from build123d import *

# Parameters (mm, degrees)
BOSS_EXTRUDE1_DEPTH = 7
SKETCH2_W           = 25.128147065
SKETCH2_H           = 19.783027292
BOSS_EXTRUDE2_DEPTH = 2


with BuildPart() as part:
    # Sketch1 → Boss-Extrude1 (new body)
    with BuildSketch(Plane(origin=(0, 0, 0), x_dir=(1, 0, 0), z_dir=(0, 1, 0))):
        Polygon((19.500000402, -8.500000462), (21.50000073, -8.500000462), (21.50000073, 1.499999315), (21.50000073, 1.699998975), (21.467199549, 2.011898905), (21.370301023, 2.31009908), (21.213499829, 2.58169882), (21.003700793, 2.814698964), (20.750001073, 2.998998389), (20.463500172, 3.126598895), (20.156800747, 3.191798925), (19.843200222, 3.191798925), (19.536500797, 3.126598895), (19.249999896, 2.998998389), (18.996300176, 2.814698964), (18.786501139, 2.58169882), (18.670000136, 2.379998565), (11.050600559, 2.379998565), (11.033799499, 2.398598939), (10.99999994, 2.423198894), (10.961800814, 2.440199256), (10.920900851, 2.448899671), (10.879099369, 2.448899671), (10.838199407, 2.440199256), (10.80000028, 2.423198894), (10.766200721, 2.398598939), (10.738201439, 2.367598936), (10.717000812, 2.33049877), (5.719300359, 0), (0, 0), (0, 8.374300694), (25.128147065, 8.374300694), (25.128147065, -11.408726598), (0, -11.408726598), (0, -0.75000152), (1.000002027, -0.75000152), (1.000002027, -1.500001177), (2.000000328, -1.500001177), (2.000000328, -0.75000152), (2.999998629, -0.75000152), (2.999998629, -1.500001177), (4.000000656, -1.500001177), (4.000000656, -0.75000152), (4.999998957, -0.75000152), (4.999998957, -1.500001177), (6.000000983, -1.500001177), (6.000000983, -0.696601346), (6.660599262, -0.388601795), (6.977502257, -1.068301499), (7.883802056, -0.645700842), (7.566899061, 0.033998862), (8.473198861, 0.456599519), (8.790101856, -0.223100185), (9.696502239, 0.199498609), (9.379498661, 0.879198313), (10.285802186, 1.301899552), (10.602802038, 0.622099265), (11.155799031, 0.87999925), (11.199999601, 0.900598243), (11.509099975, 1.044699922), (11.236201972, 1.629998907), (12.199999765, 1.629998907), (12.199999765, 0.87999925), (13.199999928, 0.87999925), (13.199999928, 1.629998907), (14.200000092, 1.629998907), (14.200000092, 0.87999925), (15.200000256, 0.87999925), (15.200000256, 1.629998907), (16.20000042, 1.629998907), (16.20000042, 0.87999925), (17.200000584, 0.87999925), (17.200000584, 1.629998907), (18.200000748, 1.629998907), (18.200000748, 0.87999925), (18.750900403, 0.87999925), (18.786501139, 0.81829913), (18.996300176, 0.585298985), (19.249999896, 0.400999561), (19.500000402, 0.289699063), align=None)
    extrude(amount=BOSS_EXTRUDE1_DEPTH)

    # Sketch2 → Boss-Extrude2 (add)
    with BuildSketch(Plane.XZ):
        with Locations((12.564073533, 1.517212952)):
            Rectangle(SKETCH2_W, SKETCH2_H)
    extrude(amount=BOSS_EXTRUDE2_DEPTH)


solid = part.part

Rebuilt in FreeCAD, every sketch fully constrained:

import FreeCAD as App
import Part
import Sketcher
Q = App.Units.Quantity


def add_polygon(sketch, points):
    """Adds a closed chain of lines whose ends are joined by coincident constraints."""
    first, n = sketch.GeometryCount, len(points)
    for a, b in zip(points, points[1:] + points[:1]):
        sketch.addGeometry(Part.LineSegment(App.Vector(*a, 0), App.Vector(*b, 0)), False)
    for i in range(n):
        sketch.addConstraint(Sketcher.Constraint("Coincident", first + i, 2, first + (i + 1) % n, 1))

doc = App.newDocument("Part")
body = doc.addObject("PartDesign::Body", "Body")

# Sketch on XZ plane
sketch1 = body.newObject("Sketcher::SketchObject", "Sketch")
sketch1.AttachmentSupport = (doc.getObject("XZ_Plane"), [""])
sketch1.MapMode = "FlatFace"
add_polygon(sketch1, [(21.5, 8.5), (19.5, 8.5), (19.5, -0.29), (19.25, -0.401), (18.996, -0.585), (18.787, -0.818), (18.751, -0.88), (18.2, -0.88), (18.2, -1.63), (17.2, -1.63), (17.2, -0.88), (16.2, -0.88), (16.2, -1.63), (15.2, -1.63), (15.2, -0.88), (14.2, -0.88), (14.2, -1.63), (13.2, -1.63), (13.2, -0.88), (12.2, -0.88), (12.2, -1.63), (11.236, -1.63), (11.509, -1.045), (11.2, -0.901), (11.156, -0.88), (10.603, -0.622), (10.286, -1.302), (9.379, -0.879), (9.697, -0.199), (8.79, 0.223), (8.473, -0.457), (7.567, -0.034), (7.884, 0.646), (6.978, 1.068), (6.661, 0.389), (6, 0.697), (6, 1.5), (5, 1.5), (5, 0.75), (4, 0.75), (4, 1.5), (3, 1.5), (3, 0.75), (2, 0.75), (2, 1.5), (1, 1.5), (1, 0.75), (0, 0.75), (0, 11.409), (25.128, 11.409), (25.128, -8.374), (0, -8.374), (0, 0), (5.719, 0), (10.717, -2.33), (10.738, -2.368), (10.766, -2.399), (10.8, -2.423), (10.838, -2.44), (10.879, -2.449), (10.921, -2.449), (10.962, -2.44), (11, -2.423), (11.034, -2.399), (11.051, -2.38), (18.67, -2.38), (18.787, -2.582), (18.996, -2.815), (19.25, -2.999), (19.537, -3.127), (19.843, -3.192), (20.157, -3.192), (20.464, -3.127), (20.75, -2.999), (21.004, -2.815), (21.213, -2.582), (21.37, -2.31), (21.467, -2.012), (21.5, -1.7)])  # lines 0-78
sketch1.addConstraint([
    Sketcher.Constraint("Horizontal", 0),
    Sketcher.Constraint("Vertical", 1),
    Sketcher.Constraint("Horizontal", 6),
    Sketcher.Constraint("Vertical", 7),
    Sketcher.Constraint("Horizontal", 8),
    Sketcher.Constraint("Vertical", 9),
    Sketcher.Constraint("Horizontal", 10),
    Sketcher.Constraint("Vertical", 11),
    Sketcher.Constraint("Horizontal", 12),
    Sketcher.Constraint("Vertical", 13),
    Sketcher.Constraint("Horizontal", 14),
    Sketcher.Constraint("Vertical", 15),
    Sketcher.Constraint("Horizontal", 16),
    Sketcher.Constraint("Vertical", 17),
    Sketcher.Constraint("Horizontal", 18),
    Sketcher.Constraint("Vertical", 19),
    Sketcher.Constraint("Horizontal", 20),
    Sketcher.Constraint("Vertical", 35),
    Sketcher.Constraint("Horizontal", 36),
    Sketcher.Constraint("Vertical", 37),
    Sketcher.Constraint("Horizontal", 38),
    Sketcher.Constraint("Vertical", 39),
    Sketcher.Constraint("Horizontal", 40),
    Sketcher.Constraint("Vertical", 41),
    Sketcher.Constraint("Horizontal", 42),
    Sketcher.Constraint("Vertical", 43),
    Sketcher.Constraint("Horizontal", 44),
    Sketcher.Constraint("Vertical", 45),
    Sketcher.Constraint("Horizontal", 46),
    Sketcher.Constraint("Vertical", 47),
    Sketcher.Constraint("Horizontal", 48),
    Sketcher.Constraint("Vertical", 49),
    Sketcher.Constraint("Horizontal", 50),
    Sketcher.Constraint("Vertical", 51),
    Sketcher.Constraint("Horizontal", 52),
    Sketcher.Constraint("Horizontal", 59),
    Sketcher.Constraint("Horizontal", 64),
    Sketcher.Constraint("Horizontal", 70),
    Sketcher.Constraint("Vertical", 78),
    Sketcher.Constraint("Coincident", 51, 2, -1, 1),
    Sketcher.Constraint("PointOnObject", 46, 2, -2),
    Sketcher.Constraint("Perpendicular", 28, 29),
    Sketcher.Constraint("Parallel", 29, 31),
    Sketcher.Constraint("Parallel", 30, 32),
    Sketcher.Constraint("Parallel", 31, 33),
    Sketcher.Constraint("Perpendicular", 25, 53),
    Sketcher.Constraint("Parallel", 3, 73),
    Sketcher.Constraint("Parallel", 4, 74),
    Sketcher.Constraint("Horizontal", 6, 2, 9, 2),
    Sketcher.Constraint("Horizontal", 8, 2, 11, 2),
    Sketcher.Constraint("Horizontal", 10, 2, 13, 2),
    Sketcher.Constraint("Horizontal", 12, 2, 15, 2),
    Sketcher.Constraint("Horizontal", 14, 2, 17, 2),
    Sketcher.Constraint("Horizontal", 16, 2, 19, 2),
    Sketcher.Constraint("Horizontal", 18, 2, 23, 2),
    Sketcher.Constraint("Horizontal", 36, 2, 39, 2),
    Sketcher.Constraint("Horizontal", 38, 2, 41, 2),
    Sketcher.Constraint("Horizontal", 40, 2, 43, 2),
    Sketcher.Constraint("Horizontal", 42, 2, 45, 2),
    Sketcher.Constraint("Horizontal", 57, 2, 60, 2),
    Sketcher.Constraint("Horizontal", 56, 2, 61, 2),
    Sketcher.Constraint("Horizontal", 55, 2, 62, 2),
    Sketcher.Constraint("Horizontal", 68, 2, 71, 2),
    Sketcher.Constraint("Horizontal", 67, 2, 72, 2),
    Sketcher.Constraint("Horizontal", 66, 2, 73, 2),
    Sketcher.Constraint("Horizontal", 65, 2, 74, 2),
    Sketcher.Constraint("Vertical", 4, 2, 65, 2),
    Sketcher.Constraint("Vertical", 3, 2, 66, 2),
    Sketcher.Constraint("Vertical", 2, 2, 67, 2),
    Sketcher.Constraint("Equal", 8, 10),
    Sketcher.Constraint("Equal", 10, 12),
    Sketcher.Constraint("Equal", 12, 14),
    Sketcher.Constraint("Equal", 14, 16),
    Sketcher.Constraint("Equal", 16, 18),
    Sketcher.Constraint("Equal", 18, 36),
    Sketcher.Constraint("Equal", 18, 38),
    Sketcher.Constraint("Equal", 36, 40),
    Sketcher.Constraint("Equal", 38, 42),
    Sketcher.Constraint("Equal", 42, 44),
    Sketcher.Constraint("Equal", 40, 46),
    Sketcher.Constraint("Equal", 19, 37),
    Sketcher.Constraint("Equal", 29, 31),
    Sketcher.Constraint("Equal", 30, 32),
    Sketcher.Constraint("Equal", 31, 33),
    Sketcher.Constraint("Equal", 58, 60),
    Sketcher.Constraint("Equal", 57, 61),
    Sketcher.Constraint("Equal", 56, 62),
    Sketcher.Constraint("Equal", 4, 66),
    Sketcher.Constraint("Equal", 3, 67),
    Sketcher.Constraint("Equal", 69, 71),
    Sketcher.Constraint("Equal", 68, 72),
    Sketcher.Constraint("DistanceX", 0, 2, 0, 1, Q("2 mm")),
    Sketcher.Constraint("DistanceX", 8, 2, 8, 1, Q("1 mm")),
    Sketcher.Constraint("DistanceY", 78, 1, 78, 2, Q("10.199999 mm")),
    Sketcher.Constraint("DistanceX", -1, 1, 61, 2, Q("11 mm")),
    Sketcher.Constraint("DistanceY", 7, 2, 7, 1, Q("0.75 mm")),
    Sketcher.Constraint("DistanceX", -1, 1, 0, 2, Q("19.5 mm")),
    Sketcher.Constraint("DistanceY", -1, 1, 0, 2, Q("8.5 mm")),
    Sketcher.Constraint("DistanceX", -1, 1, 6, 2, Q("18.200001 mm")),
    Sketcher.Constraint("DistanceX", -1, 1, 22, 2, Q("11.2 mm")),
    Sketcher.Constraint("DistanceY", -1, 1, 35, 2, Q("1.500001 mm")),
    Sketcher.Constraint("DistanceX", -1, 1, 56, 2, Q("10.8 mm")),
    Sketcher.Constraint("DistanceX", -1, 1, 2, 2, Q("19.25 mm")),
    Sketcher.Constraint("DistanceY", 5, 2, -1, 1, Q("0.879999 mm")),
    Sketcher.Constraint("DistanceY", 63, 2, -1, 1, Q("2.379999 mm")),
    Sketcher.Constraint("DistanceX", -1, 1, 64, 2, Q("18.67 mm")),
    Sketcher.Constraint("DistanceX", -1, 1, 72, 2, Q("20.750001 mm")),
    Sketcher.Constraint("DistanceX", 6, 2, 6, 1, Q("0.5509 mm")),
    Sketcher.Constraint("DistanceX", 52, 1, 52, 2, Q("5.7193 mm")),
    Sketcher.Constraint("DistanceX", 59, 1, 59, 2, Q("0.041801 mm")),
    Sketcher.Constraint("DistanceX", 64, 1, 64, 2, Q("7.6194 mm")),
    Sketcher.Constraint("DistanceX", 70, 1, 70, 2, Q("0.313601 mm")),
    Sketcher.Constraint("DistanceY", 1, 2, 1, 1, Q("8.7897 mm")),
    Sketcher.Constraint("DistanceY", 35, 1, 35, 2, Q("0.8034 mm")),
    Sketcher.Constraint("DistanceY", 51, 1, 51, 2, Q("8.374301 mm")),
    Sketcher.Constraint("DistanceY", 2, 2, -1, 1, Q("0.401 mm")),
    Sketcher.Constraint("DistanceY", 30, 2, -1, 1, Q("0.033999 mm")),
    Sketcher.Constraint("DistanceX", -1, 1, 53, 2, Q("10.717001 mm")),
    Sketcher.Constraint("DistanceY", 67, 2, -1, 1, Q("2.998998 mm")),
    Sketcher.Constraint("DistanceX", -1, 1, 3, 2, Q("18.9963 mm")),
    Sketcher.Constraint("DistanceY", 3, 2, -1, 1, Q("0.585299 mm")),
    Sketcher.Constraint("DistanceX", -1, 1, 4, 2, Q("18.786501 mm")),
    Sketcher.Constraint("DistanceY", 4, 2, -1, 1, Q("0.818299 mm")),
    Sketcher.Constraint("DistanceX", -1, 1, 20, 2, Q("11.236202 mm")),
    Sketcher.Constraint("DistanceX", -1, 1, 21, 2, Q("11.5091 mm")),
    Sketcher.Constraint("DistanceY", 21, 2, -1, 1, Q("1.0447 mm")),
    Sketcher.Constraint("DistanceY", 22, 2, -1, 1, Q("0.900598 mm")),
    Sketcher.Constraint("DistanceX", -1, 1, 23, 2, Q("11.155799 mm")),
    Sketcher.Constraint("DistanceY", 24, 2, -1, 1, Q("0.622099 mm")),
    Sketcher.Constraint("DistanceY", 25, 2, -1, 1, Q("1.3019 mm")),
    Sketcher.Constraint("DistanceX", -1, 1, 26, 2, Q("9.379499 mm")),
    Sketcher.Constraint("DistanceY", 26, 2, -1, 1, Q("0.879198 mm")),
    Sketcher.Constraint("DistanceY", 27, 2, -1, 1, Q("0.199499 mm")),
    Sketcher.Constraint("DistanceX", -1, 1, 28, 2, Q("8.790102 mm")),
    Sketcher.Constraint("DistanceY", -1, 1, 28, 2, Q("0.2231 mm")),
    Sketcher.Constraint("DistanceX", -1, 1, 29, 2, Q("8.473199 mm")),
    Sketcher.Constraint("DistanceY", 29, 2, -1, 1, Q("0.4566 mm")),
    Sketcher.Constraint("DistanceX", -1, 1, 30, 2, Q("7.566899 mm")),
    Sketcher.Constraint("DistanceY", 53, 2, -1, 1, Q("2.330499 mm")),
    Sketcher.Constraint("DistanceX", -1, 1, 54, 2, Q("10.738201 mm")),
    Sketcher.Constraint("DistanceY", 54, 2, -1, 1, Q("2.367599 mm")),
    Sketcher.Constraint("DistanceX", -1, 1, 55, 2, Q("10.766201 mm")),
    Sketcher.Constraint("DistanceY", 55, 2, -1, 1, Q("2.398599 mm")),
    Sketcher.Constraint("DistanceY", 56, 2, -1, 1, Q("2.423199 mm")),
    Sketcher.Constraint("DistanceX", -1, 1, 57, 2, Q("10.838199 mm")),
    Sketcher.Constraint("DistanceY", 57, 2, -1, 1, Q("2.440199 mm")),
    Sketcher.Constraint("DistanceY", 58, 2, -1, 1, Q("2.4489 mm")),
    Sketcher.Constraint("DistanceX", -1, 1, 68, 2, Q("19.536501 mm")),
    Sketcher.Constraint("DistanceY", 68, 2, -1, 1, Q("3.126599 mm")),
    Sketcher.Constraint("DistanceY", 69, 2, -1, 1, Q("3.191799 mm")),
    Sketcher.Constraint("DistanceX", -1, 1, 75, 2, Q("21.370301 mm")),
    Sketcher.Constraint("DistanceY", 75, 2, -1, 1, Q("2.310099 mm")),
    Sketcher.Constraint("DistanceX", -1, 1, 76, 2, Q("21.4672 mm")),
    Sketcher.Constraint("DistanceY", 76, 2, -1, 1, Q("2.011899 mm")),
    Sketcher.Constraint("Distance", 24, Q("0.610179 mm")),
    Sketcher.Constraint("DistanceX", 48, 1, 48, 2, Q("25.128147 mm")),
    Sketcher.Constraint("DistanceY", 47, 1, 47, 2, Q("10.658725 mm")),
])
pad1 = body.newObject("PartDesign::Pad", "Pad")
pad1.Profile = sketch1
pad1.Length = 7
pad1.Reversed = True

# Sketch on XZ plane
sketch2 = body.newObject("Sketcher::SketchObject", "Sketch001")
sketch2.AttachmentSupport = (doc.getObject("XZ_Plane"), [""])
sketch2.MapMode = "FlatFace"
add_polygon(sketch2, [(0, 11), (0, -8), (25, -8), (25, 11)])  # lines 0-3
sketch2.addConstraint([
    Sketcher.Constraint("Vertical", 0),
    Sketcher.Constraint("Horizontal", 1),
    Sketcher.Constraint("Vertical", 2),
    Sketcher.Constraint("Horizontal", 3),
    Sketcher.Constraint("PointOnObject", 0, 2, -2),
    Sketcher.Constraint("DistanceY", 0, 2, -1, 1, Q("8.374301 mm")),
    Sketcher.Constraint("DistanceX", 1, 1, 1, 2, Q("25.128147 mm")),
    Sketcher.Constraint("DistanceY", 0, 2, 0, 1, Q("19.783027 mm")),
])
pad2 = body.newObject("PartDesign::Pad", "Pad001")
pad2.Profile = sketch2
pad2.Length = 2

doc.recompute()
